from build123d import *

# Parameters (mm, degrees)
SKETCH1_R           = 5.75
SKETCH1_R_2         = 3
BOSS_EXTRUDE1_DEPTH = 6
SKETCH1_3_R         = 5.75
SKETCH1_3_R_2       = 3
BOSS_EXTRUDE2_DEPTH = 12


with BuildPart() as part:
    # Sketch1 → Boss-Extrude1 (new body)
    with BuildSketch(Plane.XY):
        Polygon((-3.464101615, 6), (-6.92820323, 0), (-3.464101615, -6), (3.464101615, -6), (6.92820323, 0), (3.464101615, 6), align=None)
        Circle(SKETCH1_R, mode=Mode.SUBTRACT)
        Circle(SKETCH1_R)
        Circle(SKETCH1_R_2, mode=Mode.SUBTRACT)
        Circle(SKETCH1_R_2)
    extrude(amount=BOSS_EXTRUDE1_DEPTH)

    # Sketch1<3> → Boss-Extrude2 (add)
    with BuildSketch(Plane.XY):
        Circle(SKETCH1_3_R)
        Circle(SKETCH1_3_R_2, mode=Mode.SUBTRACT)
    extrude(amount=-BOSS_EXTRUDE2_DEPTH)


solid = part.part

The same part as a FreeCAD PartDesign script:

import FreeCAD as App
import Part
import Sketcher

V = App.Vector
Q = App.Units.Quantity


def add_polygon(sketch, points):
    """Adds a closed chain of lines whose ends are joined by coincident constraints."""
    first, n = sketch.GeometryCount, len(points)
    for a, b in zip(points, points[1:] + points[:1]):
        sketch.addGeometry(Part.LineSegment(App.Vector(*a, 0), App.Vector(*b, 0)), False)
    for i in range(n):
        sketch.addConstraint(Sketcher.Constraint("Coincident", first + i, 2, first + (i + 1) % n, 1))

doc = App.newDocument("Part")
body = doc.addObject("PartDesign::Body", "Body")

# Sketch on XY plane
sketch1 = body.newObject("Sketcher::SketchObject", "Sketch")
sketch1.AttachmentSupport = (doc.getObject("XY_Plane"), [""])
sketch1.MapMode = "FlatFace"
add_polygon(sketch1, [(-3, 6), (-7, 0), (-3, -6), (3, -6), (7, 0), (3, 6)])  # lines 0-5
sketch1.addConstraint([
    Sketcher.Constraint("Horizontal", 2),
    Sketcher.Constraint("Horizontal", 5),
    Sketcher.Constraint("Symmetric", 0, 2, 3, 2, -1, 1),
    Sketcher.Constraint("Symmetric", 1, 2, 4, 2, -1, 1),
    Sketcher.Constraint("PointOnObject", 0, 2, -1),
    Sketcher.Constraint("Parallel", 0, 3),
    Sketcher.Constraint("Vertical", 2, 2, 4, 2),
    Sketcher.Constraint("Angle", 0, Q("-120 deg")),
    Sketcher.Constraint("DistanceY", 1, 2, -1, 1, 6.0),
    Sketcher.Constraint("DistanceX", 1, 2, -1, 1, 3.464102),
])
pad1 = body.newObject("PartDesign::Pad", "Pad")
pad1.Profile = sketch1
pad1.Length = 6

# Sketch on XY plane
sketch2 = body.newObject("Sketcher::SketchObject", "Sketch001")
sketch2.AttachmentSupport = (doc.getObject("XY_Plane"), [""])
sketch2.MapMode = "FlatFace"
sketch2.addGeometry([
    Part.Circle(V(0, 0, 0), V(0, 0, 1), 5.8),
    Part.Circle(V(0, 0, 0), V(0, 0, 1), 3),
], False)
sketch2.addConstraint([
    Sketcher.Constraint("Coincident", 0, 3, -1, 1),
    Sketcher.Constraint("Coincident", 1, 3, -1, 1),
    Sketcher.Constraint("Diameter", 1, 6.0),
    Sketcher.Constraint("Diameter", 0, 11.5),
])
pad2 = body.newObject("PartDesign::Pad", "Pad001")
pad2.Profile = sketch2
pad2.Length = 12
pad2.Reversed = True

doc.recompute()
